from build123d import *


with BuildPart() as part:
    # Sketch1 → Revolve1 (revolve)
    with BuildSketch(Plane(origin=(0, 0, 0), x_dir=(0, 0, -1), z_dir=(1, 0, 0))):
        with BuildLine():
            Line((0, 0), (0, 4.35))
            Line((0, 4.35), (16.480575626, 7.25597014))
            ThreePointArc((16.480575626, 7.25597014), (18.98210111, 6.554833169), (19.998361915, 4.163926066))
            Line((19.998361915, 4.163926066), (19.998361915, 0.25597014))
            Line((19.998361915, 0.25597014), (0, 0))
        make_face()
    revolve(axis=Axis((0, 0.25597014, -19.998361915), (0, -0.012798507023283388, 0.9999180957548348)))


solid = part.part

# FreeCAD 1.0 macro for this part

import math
import FreeCAD as App
import Part
import Sketcher
from FreeCAD import Vector
Q = App.Units.Quantity

doc = App.newDocument("Part")
body = doc.addObject("PartDesign::Body", "Body")

# Sketch on YZ plane
sketch1 = body.newObject("Sketcher::SketchObject", "Sketch")
sketch1.AttachmentSupport = (doc.getObject("YZ_Plane"), [""])
sketch1.MapMode = "FlatFace"
sketch1.addGeometry([
    Part.LineSegment(Vector(4.3, 0, 0), Vector(0, 0, 0)),  # 0
    Part.LineSegment(Vector(0, 0, 0), Vector(0.3, -20, 0)),  # 1
    Part.LineSegment(Vector(0.3, -20, 0), Vector(4.2, -20, 0)),  # 2
    Part.ArcOfCircle(Part.Circle(Vector(4.3, -17, 0), Vector(0, 0, 1), 3), math.radians(-93), math.radians(10)),  # 3
    Part.LineSegment(Vector(7.3, -16.5, 0), Vector(4.3, 0, 0)),  # 4
], False)
sketch1.addGeometry(Part.LineSegment(Vector(0.3, -20, 0), Vector(0, 0, 0)), True)  # axis
sketch1.addConstraint([
    Sketcher.Constraint("Coincident", 0, 2, 1, 1),
    Sketcher.Constraint("Coincident", 1, 2, 2, 1),
    Sketcher.Constraint("Coincident", 2, 2, 3, 1),
    Sketcher.Constraint("Tangent", 3, 2, 4, 1),
    Sketcher.Constraint("Coincident", 4, 2, 0, 1),
    Sketcher.Constraint("Horizontal", 0),
    Sketcher.Constraint("Horizontal", 2),
    Sketcher.Constraint("Coincident", 0, 2, -1, 1),
    Sketcher.Constraint("Coincident", 5, 2, -1, 1),
    Sketcher.Constraint("Parallel", 1, 5),
    Sketcher.Constraint("Radius", 3, Q("3 mm")),
    Sketcher.Constraint("Angle", 4, Q("100 deg")),
    Sketcher.Constraint("Distance", 1, Q("20 mm")),
    Sketcher.Constraint("DistanceX", 1, 2, 3, 2, Q("7 mm")),
    Sketcher.Constraint("DistanceX", 0, 2, 0, 1, Q("4.35 mm")),
    Sketcher.Constraint("DistanceY", 5, 1, 3, 2, Q("3.567798 mm")),
    Sketcher.Constraint("DistanceX", 2, 1, 2, 2, Q("3.907956 mm")),
])
revolution = body.newObject("PartDesign::Revolution", "Revolution")
revolution.Profile = sketch1
revolution.ReferenceAxis = (sketch1, ["Axis0"])
revolution.Angle = 360

doc.recompute()
